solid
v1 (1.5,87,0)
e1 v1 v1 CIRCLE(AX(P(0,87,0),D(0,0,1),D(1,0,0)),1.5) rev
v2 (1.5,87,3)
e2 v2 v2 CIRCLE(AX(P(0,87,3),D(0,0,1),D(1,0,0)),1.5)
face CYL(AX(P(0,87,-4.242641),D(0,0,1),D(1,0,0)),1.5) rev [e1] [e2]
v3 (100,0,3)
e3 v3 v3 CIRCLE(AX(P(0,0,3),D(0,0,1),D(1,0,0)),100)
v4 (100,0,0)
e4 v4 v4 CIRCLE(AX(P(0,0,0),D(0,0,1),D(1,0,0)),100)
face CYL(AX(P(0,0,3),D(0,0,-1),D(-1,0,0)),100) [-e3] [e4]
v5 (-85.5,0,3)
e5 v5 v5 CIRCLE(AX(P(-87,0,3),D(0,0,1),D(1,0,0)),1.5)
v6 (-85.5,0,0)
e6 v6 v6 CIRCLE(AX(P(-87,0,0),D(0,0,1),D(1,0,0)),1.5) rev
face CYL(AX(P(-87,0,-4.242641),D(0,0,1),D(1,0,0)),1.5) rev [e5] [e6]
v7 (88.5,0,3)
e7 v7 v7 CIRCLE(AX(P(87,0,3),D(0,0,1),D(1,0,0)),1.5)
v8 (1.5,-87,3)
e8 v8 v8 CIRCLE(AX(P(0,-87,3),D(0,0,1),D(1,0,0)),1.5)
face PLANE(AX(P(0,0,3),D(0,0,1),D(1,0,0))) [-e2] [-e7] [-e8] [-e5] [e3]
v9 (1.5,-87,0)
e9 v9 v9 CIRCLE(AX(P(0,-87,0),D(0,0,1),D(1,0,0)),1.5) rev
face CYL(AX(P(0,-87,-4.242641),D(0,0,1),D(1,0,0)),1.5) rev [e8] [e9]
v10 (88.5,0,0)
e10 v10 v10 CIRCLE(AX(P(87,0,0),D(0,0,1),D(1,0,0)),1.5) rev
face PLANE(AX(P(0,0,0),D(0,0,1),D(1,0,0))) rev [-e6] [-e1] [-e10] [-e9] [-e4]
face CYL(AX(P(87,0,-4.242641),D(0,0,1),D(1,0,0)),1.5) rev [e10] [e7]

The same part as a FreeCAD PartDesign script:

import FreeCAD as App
import Part
import Sketcher

V = App.Vector
Q = App.Units.Quantity

doc = App.newDocument("Part")
body = doc.addObject("PartDesign::Body", "Body")

# Sketch on XY plane
sketch1 = body.newObject("Sketcher::SketchObject", "Sketch")
sketch1.AttachmentSupport = (doc.getObject("XY_Plane"), [""])
sketch1.MapMode = "FlatFace"
sketch1.addGeometry(Part.Circle(V(0, 0, 0), V(0, 0, 1), 100), False)
sketch1.addConstraint([
    Sketcher.Constraint("Coincident", 0, 3, -1, 1),
    Sketcher.Constraint("Diameter", 0, Q("200 mm")),
])
pad1 = body.newObject("PartDesign::Pad", "Pad")
pad1.Profile = sketch1
pad1.Length = 3

# Sketch on XY plane
sketch2 = body.newObject("Sketcher::SketchObject", "Sketch001")
sketch2.AttachmentSupport = (doc.getObject("XY_Plane"), [""])
sketch2.MapMode = "FlatFace"
sketch2.AttachmentOffset = App.Placement(V(0, 0, 3), App.Rotation())
sketch2.addGeometry([
    Part.Circle(V(0, 87, 0), V(0, 0, 1), 1.5),
    Part.Circle(V(87, 0, 0), V(0, 0, 1), 1.5),
    Part.Circle(V(0, -87, 0), V(0, 0, 1), 1.5),
    Part.Circle(V(-87, 0, 0), V(0, 0, 1), 1.5),
], False)
sketch2.addConstraint([
    Sketcher.Constraint("Equal", 0, 1),
    Sketcher.Constraint("Equal", 1, 2),
    Sketcher.Constraint("Equal", 2, 3),
    Sketcher.Constraint("Symmetric", 0, 3, 2, 3, -1, 1),
    Sketcher.Constraint("Symmetric", 1, 3, 3, 3, -1, 1),
    Sketcher.Constraint("PointOnObject", 0, 3, -2),
    Sketcher.Constraint("PointOnObject", 1, 3, -1),
    Sketcher.Constraint("Diameter", 0, Q("3 mm")),
    Sketcher.Constraint("DistanceY", -1, 1, 0, 3, Q("87 mm")),
    Sketcher.Constraint("DistanceX", -1, 1, 1, 3, Q("87 mm")),
])
pocket1 = body.newObject("PartDesign::Pocket", "Pocket")
pocket1.Profile = sketch2
pocket1.Length = 3

doc.recompute()
